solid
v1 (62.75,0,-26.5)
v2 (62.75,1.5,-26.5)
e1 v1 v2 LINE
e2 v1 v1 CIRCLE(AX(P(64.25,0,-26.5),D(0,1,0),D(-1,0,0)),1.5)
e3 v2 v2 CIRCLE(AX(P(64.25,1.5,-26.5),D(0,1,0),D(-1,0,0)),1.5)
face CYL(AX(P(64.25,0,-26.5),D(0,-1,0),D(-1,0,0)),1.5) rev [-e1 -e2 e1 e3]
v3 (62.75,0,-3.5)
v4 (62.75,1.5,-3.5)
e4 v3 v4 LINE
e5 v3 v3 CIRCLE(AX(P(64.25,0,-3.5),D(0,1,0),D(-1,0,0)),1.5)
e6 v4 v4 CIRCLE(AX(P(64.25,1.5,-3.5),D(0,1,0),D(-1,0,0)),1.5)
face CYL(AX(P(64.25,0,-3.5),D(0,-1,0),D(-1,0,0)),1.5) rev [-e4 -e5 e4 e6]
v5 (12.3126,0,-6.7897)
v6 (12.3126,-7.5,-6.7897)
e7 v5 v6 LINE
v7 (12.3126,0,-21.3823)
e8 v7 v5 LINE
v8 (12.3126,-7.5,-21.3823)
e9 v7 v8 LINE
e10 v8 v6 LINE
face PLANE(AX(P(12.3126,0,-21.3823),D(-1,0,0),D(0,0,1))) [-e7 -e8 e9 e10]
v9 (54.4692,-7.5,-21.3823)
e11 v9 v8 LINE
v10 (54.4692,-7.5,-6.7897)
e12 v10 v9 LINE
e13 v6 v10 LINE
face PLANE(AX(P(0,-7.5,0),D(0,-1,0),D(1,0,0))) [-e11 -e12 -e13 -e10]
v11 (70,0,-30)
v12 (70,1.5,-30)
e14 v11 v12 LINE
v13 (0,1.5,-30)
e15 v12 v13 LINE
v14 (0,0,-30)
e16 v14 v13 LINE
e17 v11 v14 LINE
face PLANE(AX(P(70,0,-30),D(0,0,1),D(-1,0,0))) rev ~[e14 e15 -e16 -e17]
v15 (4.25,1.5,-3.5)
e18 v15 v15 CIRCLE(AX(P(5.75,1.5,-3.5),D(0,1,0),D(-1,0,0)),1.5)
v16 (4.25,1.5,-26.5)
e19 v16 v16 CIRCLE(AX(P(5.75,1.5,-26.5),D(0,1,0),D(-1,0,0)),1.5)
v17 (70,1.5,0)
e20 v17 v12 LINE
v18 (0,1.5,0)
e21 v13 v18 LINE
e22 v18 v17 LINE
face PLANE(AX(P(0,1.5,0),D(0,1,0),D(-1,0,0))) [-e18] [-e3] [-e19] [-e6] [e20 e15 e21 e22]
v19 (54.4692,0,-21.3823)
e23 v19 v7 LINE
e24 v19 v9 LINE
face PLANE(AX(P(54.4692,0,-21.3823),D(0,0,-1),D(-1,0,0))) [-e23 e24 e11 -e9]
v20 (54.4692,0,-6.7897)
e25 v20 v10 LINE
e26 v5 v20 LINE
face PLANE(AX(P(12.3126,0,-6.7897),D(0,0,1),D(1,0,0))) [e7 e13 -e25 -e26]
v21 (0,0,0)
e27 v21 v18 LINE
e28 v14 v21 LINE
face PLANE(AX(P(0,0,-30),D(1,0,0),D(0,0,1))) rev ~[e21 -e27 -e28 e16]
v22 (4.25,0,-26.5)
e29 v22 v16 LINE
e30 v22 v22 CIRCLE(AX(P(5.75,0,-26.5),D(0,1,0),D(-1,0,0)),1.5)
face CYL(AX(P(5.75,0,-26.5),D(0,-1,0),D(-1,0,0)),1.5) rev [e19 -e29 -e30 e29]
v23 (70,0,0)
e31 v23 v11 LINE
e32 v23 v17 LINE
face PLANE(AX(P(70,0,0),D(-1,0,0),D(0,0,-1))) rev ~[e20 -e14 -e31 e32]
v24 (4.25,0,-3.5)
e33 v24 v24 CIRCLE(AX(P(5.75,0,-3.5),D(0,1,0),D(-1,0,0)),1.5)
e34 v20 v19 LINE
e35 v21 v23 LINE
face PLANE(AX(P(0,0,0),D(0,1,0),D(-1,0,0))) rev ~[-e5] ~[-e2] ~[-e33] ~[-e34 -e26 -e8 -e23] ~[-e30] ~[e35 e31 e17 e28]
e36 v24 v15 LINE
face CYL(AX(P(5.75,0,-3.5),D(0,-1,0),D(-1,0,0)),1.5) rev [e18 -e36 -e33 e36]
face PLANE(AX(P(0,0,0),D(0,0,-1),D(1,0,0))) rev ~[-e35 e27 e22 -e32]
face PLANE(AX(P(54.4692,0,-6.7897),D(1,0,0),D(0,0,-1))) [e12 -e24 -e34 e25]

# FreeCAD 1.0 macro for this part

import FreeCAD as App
import Part
import Sketcher

doc = App.newDocument("Part")
params = doc.addObject("Spreadsheet::Sheet", "Params")
for row, (alias, value) in enumerate([
    ("sketch1_diameter", "3 mm"),
    ("sketch1_width", "70 mm"),
    ("sketch1_height", "30 mm"),
    ("pad1_length", "1.5 mm"),
    ("pad2_length", "7.5 mm"),
], start=1):
    params.set(f"A{row}", alias)
    params.set(f"B{row}", "=" + value)
    params.setAlias(f"B{row}", alias)

body = doc.addObject("PartDesign::Body", "Body")

sketch1 = body.newObject("Sketcher::SketchObject", "Sketch")
sketch1.AttachmentSupport = (doc.getObject("XZ_Plane"), [""])
sketch1.MapMode = "FlatFace"
sketch1.addGeometry([
    Part.LineSegment(App.Vector(0, -30, 0), App.Vector(0, 0, 0)),
    Part.LineSegment(App.Vector(0, 0, 0), App.Vector(70, 0, 0)),
    Part.LineSegment(App.Vector(70, 0, 0), App.Vector(70, -30, 0)),
    Part.LineSegment(App.Vector(70, -30, 0), App.Vector(0, -30, 0)),
    Part.Circle(App.Vector(64.2, -26.5, 0), App.Vector(0, 0, 1), 1.5),
    Part.Circle(App.Vector(5.8, -26.5, 0), App.Vector(0, 0, 1), 1.5),
    Part.Circle(App.Vector(64.2, -3.5, 0), App.Vector(0, 0, 1), 1.5),
    Part.Circle(App.Vector(5.8, -3.5, 0), App.Vector(0, 0, 1), 1.5),
], False)
sketch1.addConstraint([
    Sketcher.Constraint("Coincident", 0, 2, 1, 1),
    Sketcher.Constraint("Coincident", 1, 2, 2, 1),
    Sketcher.Constraint("Coincident", 2, 2, 3, 1),
    Sketcher.Constraint("Coincident", 3, 2, 0, 1),
    Sketcher.Constraint("Vertical", 0),
    Sketcher.Constraint("Horizontal", 1),
    Sketcher.Constraint("Vertical", 2),
    Sketcher.Constraint("Horizontal", 3),
    Sketcher.Constraint("Coincident", 0, 2, -1, 1),
    Sketcher.Constraint("Equal", 4, 5),
    Sketcher.Constraint("Equal", 5, 6),
    Sketcher.Constraint("Equal", 6, 7),
    Sketcher.Constraint("Horizontal", 4, 3, 5, 3),
    Sketcher.Constraint("Horizontal", 6, 3, 7, 3),
    Sketcher.Constraint("Vertical", 4, 3, 6, 3),
    Sketcher.Constraint("Vertical", 5, 3, 7, 3),
    Sketcher.Constraint("Diameter", 4, 3.0),
    Sketcher.Constraint("DistanceX", 1, 1, 1, 2, 70.0),
    Sketcher.Constraint("DistanceY", 0, 1, 0, 2, 30.0),
    Sketcher.Constraint("DistanceY", 6, 3, -1, 1, 3.5),
    Sketcher.Constraint("DistanceY", 2, 2, 4, 3, 3.5),
    Sketcher.Constraint("DistanceX", 5, 3, 4, 3, 58.5),
    Sketcher.Constraint("DistanceX", -1, 1, 4, 3, 64.25),
])
sketch1.setExpression("Constraints[16]", "Params.sketch1_diameter")
sketch1.setExpression("Constraints[17]", "Params.sketch1_width")
sketch1.setExpression("Constraints[18]", "Params.sketch1_height")
pad1 = body.newObject("PartDesign::Pad", "Pad")
pad1.Profile = sketch1
pad1.setExpression("Length", "Params.pad1_length")
pad1.Reversed = True

sketch2 = body.newObject("Sketcher::SketchObject", "Sketch001")
sketch2.AttachmentSupport = (doc.getObject("XZ_Plane"), [""])
sketch2.MapMode = "FlatFace"
sketch2.addGeometry([
    Part.LineSegment(App.Vector(54, -7, 0), App.Vector(12, -7, 0)),
    Part.LineSegment(App.Vector(12, -7, 0), App.Vector(12, -21, 0)),
    Part.LineSegment(App.Vector(12, -21, 0), App.Vector(54, -21, 0)),
    Part.LineSegment(App.Vector(54, -21, 0), App.Vector(54, -7, 0)),
], False)
sketch2.addConstraint([
    Sketcher.Constraint("Coincident", 0, 2, 1, 1),
    Sketcher.Constraint("Coincident", 1, 2, 2, 1),
    Sketcher.Constraint("Coincident", 2, 2, 3, 1),
    Sketcher.Constraint("Coincident", 3, 2, 0, 1),
    Sketcher.Constraint("Horizontal", 0),
    Sketcher.Constraint("Vertical", 1),
    Sketcher.Constraint("Horizontal", 2),
    Sketcher.Constraint("Vertical", 3),
    Sketcher.Constraint("DistanceX", 0, 2, 0, 1, 42.1566),
    Sketcher.Constraint("DistanceY", 1, 2, 1, 1, 14.5926),
    Sketcher.Constraint("DistanceX", -1, 1, 0, 2, 12.3126),
    Sketcher.Constraint("DistanceY", 0, 2, -1, 1, 6.7897),
])
pad2 = body.newObject("PartDesign::Pad", "Pad001")
pad2.Profile = sketch2
pad2.setExpression("Length", "Params.pad2_length")

doc.recompute()
